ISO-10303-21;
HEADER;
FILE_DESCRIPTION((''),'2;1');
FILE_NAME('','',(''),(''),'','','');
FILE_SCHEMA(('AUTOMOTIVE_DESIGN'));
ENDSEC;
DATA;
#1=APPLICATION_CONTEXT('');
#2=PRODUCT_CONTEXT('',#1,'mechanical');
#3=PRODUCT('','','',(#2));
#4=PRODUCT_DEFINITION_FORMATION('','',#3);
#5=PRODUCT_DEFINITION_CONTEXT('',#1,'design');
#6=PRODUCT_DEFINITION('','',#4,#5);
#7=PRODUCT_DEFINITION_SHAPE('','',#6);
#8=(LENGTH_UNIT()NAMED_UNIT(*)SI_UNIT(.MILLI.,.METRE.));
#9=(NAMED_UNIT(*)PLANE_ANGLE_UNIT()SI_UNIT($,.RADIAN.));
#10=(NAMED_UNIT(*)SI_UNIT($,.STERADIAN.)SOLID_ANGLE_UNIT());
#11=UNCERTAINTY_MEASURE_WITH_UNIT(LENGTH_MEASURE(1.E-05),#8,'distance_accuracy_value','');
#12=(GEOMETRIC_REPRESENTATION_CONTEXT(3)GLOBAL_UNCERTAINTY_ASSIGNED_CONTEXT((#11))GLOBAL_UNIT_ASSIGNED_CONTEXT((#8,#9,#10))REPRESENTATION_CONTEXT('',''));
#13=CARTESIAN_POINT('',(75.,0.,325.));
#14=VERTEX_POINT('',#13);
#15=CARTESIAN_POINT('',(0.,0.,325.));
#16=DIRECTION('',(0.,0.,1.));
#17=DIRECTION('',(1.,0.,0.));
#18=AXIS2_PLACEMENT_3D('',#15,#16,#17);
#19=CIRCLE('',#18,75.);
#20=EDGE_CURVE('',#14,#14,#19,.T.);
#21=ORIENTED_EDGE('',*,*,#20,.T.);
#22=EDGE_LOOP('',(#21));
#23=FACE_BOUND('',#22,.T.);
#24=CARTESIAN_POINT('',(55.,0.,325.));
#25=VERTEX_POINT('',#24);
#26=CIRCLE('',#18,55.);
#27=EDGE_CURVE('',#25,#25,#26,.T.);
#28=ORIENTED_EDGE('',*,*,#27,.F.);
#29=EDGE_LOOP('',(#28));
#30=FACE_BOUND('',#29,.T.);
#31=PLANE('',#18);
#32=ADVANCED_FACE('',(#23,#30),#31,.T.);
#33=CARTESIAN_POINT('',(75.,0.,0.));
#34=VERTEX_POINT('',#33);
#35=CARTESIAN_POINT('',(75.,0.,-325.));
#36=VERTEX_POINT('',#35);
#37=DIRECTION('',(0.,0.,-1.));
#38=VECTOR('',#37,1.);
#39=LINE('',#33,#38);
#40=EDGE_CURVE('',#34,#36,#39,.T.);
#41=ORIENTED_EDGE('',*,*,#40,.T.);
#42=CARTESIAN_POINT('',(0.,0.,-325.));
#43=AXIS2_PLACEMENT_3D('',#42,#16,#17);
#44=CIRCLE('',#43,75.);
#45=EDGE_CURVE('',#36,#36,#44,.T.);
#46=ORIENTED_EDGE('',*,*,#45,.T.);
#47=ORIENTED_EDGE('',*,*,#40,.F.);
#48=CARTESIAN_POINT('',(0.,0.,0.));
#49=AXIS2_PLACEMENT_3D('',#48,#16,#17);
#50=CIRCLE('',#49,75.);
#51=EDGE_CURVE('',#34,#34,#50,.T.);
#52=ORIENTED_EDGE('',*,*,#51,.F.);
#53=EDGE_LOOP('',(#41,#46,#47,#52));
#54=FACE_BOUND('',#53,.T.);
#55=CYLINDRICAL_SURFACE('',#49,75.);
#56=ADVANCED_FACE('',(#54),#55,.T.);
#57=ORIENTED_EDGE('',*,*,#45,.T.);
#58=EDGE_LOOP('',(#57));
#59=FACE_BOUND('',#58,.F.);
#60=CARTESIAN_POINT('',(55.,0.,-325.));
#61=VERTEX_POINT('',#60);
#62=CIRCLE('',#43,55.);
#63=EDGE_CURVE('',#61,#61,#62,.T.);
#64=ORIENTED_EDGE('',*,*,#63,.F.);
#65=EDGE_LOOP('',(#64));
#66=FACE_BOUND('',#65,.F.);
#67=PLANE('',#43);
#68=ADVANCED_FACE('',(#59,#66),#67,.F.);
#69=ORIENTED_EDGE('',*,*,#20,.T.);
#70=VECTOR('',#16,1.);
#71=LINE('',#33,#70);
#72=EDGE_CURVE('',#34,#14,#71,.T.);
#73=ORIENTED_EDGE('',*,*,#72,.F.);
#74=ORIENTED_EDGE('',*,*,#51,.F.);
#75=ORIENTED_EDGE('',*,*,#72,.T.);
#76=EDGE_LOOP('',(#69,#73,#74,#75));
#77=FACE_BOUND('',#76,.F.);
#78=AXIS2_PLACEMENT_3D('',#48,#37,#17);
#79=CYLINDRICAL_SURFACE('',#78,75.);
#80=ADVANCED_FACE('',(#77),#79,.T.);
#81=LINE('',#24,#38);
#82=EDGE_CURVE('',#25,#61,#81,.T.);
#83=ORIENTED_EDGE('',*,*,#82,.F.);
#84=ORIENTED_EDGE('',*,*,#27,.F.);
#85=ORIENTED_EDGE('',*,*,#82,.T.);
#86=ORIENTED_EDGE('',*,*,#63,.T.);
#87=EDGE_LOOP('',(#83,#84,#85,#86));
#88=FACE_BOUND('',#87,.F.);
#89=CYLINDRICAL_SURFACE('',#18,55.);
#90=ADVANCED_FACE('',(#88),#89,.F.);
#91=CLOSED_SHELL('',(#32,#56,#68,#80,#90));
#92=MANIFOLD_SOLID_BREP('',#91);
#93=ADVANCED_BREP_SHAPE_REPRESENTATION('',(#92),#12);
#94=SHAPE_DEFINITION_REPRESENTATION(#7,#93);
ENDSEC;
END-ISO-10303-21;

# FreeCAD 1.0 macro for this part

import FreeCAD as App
import Part
import Sketcher

V = App.Vector

doc = App.newDocument("Part")
body = doc.addObject("PartDesign::Body", "Body")

# Sketch on XY plane
sketch1 = body.newObject("Sketcher::SketchObject", "Sketch")
sketch1.AttachmentSupport = (doc.getObject("XY_Plane"), [""])
sketch1.MapMode = "FlatFace"
sketch1.addGeometry(Part.Circle(V(0, 0, 0), V(0, 0, 1), 75), False)
sketch1.addConstraint([
    Sketcher.Constraint("Coincident", 0, 3, -1, 1),
    Sketcher.Constraint("Diameter", 0, 150.0),
])
pad1 = body.newObject("PartDesign::Pad", "Pad")
pad1.Profile = sketch1
pad1.Length = 650
pad1.Midplane = True

# Sketch on XY plane
sketch2 = body.newObject("Sketcher::SketchObject", "Sketch001")
sketch2.AttachmentSupport = (doc.getObject("XY_Plane"), [""])
sketch2.MapMode = "FlatFace"
sketch2.AttachmentOffset = App.Placement(V(0, 0, 325), App.Rotation())
sketch2.addGeometry(Part.Circle(V(0, 0, 0), V(0, 0, 1), 55), False)
sketch2.addConstraint([
    Sketcher.Constraint("Coincident", 0, 3, -1, 1),
    Sketcher.Constraint("Diameter", 0, 110.0),
])
pocket1 = body.newObject("PartDesign::Pocket", "Pocket")
pocket1.Profile = sketch2
pocket1.Type = "ThroughAll"

doc.recompute()
